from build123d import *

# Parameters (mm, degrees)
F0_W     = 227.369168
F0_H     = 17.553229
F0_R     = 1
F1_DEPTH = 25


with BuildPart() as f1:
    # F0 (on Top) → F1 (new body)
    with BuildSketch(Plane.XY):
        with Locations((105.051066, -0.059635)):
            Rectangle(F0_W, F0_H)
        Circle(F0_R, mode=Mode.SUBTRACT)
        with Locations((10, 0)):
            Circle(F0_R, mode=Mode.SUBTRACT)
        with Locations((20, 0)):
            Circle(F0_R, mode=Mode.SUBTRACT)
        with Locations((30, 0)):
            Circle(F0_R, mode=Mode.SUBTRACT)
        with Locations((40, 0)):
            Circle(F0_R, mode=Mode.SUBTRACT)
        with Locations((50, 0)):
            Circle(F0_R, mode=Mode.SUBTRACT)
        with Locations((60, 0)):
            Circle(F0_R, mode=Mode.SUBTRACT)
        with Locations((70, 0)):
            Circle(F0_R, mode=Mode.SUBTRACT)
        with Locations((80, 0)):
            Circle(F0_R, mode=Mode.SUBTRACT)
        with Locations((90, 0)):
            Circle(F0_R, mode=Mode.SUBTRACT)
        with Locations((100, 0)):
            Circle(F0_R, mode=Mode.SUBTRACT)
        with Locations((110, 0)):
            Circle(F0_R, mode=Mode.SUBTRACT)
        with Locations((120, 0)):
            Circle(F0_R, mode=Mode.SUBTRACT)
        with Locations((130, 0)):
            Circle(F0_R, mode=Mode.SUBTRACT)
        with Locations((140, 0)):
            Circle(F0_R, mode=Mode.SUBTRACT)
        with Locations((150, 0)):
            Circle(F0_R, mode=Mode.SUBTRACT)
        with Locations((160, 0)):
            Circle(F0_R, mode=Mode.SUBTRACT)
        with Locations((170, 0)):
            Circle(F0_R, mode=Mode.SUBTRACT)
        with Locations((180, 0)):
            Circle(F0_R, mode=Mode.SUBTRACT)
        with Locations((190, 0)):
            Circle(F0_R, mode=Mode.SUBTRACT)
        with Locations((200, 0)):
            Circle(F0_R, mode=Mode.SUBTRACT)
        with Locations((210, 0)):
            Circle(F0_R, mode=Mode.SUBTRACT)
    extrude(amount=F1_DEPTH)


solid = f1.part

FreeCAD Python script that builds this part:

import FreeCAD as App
import Part
import Sketcher

V = App.Vector

doc = App.newDocument("Part")
params = doc.addObject("Spreadsheet::Sheet", "Params")
for row, (alias, value) in enumerate([
    ("sketch1_diameter", "2 mm"),
    ("pad1_length", "25 mm"),
], start=1):
    params.set(f"A{row}", alias)
    params.set(f"B{row}", "=" + value)
    params.setAlias(f"B{row}", alias)

body = doc.addObject("PartDesign::Body", "Body")

# Sketch on XY plane
sketch1 = doc.addObject("Sketcher::SketchObject", "Sketch")
body.addObject(sketch1)
sketch1.AttachmentSupport = (doc.XY_Plane, [""])
sketch1.MapMode = "FlatFace"
sketch1.addGeometry(Part.LineSegment(V(-8.6, 8.7, 0), V(-8.6, -8.8, 0)), False)
sketch1.addGeometry(Part.LineSegment(V(-8.6, -8.8, 0), V(218.7, -8.8, 0)), False)
sketch1.addGeometry(Part.LineSegment(V(218.7, -8.8, 0), V(218.7, 8.7, 0)), False)
sketch1.addGeometry(Part.LineSegment(V(218.7, 8.7, 0), V(-8.6, 8.7, 0)), False)
sketch1.addGeometry(Part.Circle(V(0, 0, 0), V(0, 0, 1), 1), False)
sketch1.addGeometry(Part.Circle(V(10, 0, 0), V(0, 0, 1), 1), False)
sketch1.addGeometry(Part.Circle(V(20, 0, 0), V(0, 0, 1), 1), False)
sketch1.addGeometry(Part.Circle(V(30, 0, 0), V(0, 0, 1), 1), False)
sketch1.addGeometry(Part.Circle(V(40, 0, 0), V(0, 0, 1), 1), False)
sketch1.addGeometry(Part.Circle(V(50, 0, 0), V(0, 0, 1), 1), False)
sketch1.addGeometry(Part.Circle(V(60, 0, 0), V(0, 0, 1), 1), False)
sketch1.addGeometry(Part.Circle(V(70, 0, 0), V(0, 0, 1), 1), False)
sketch1.addGeometry(Part.Circle(V(80, 0, 0), V(0, 0, 1), 1), False)
sketch1.addGeometry(Part.Circle(V(90, 0, 0), V(0, 0, 1), 1), False)
sketch1.addGeometry(Part.Circle(V(100, 0, 0), V(0, 0, 1), 1), False)
sketch1.addGeometry(Part.Circle(V(110, 0, 0), V(0, 0, 1), 1), False)
sketch1.addGeometry(Part.Circle(V(120, 0, 0), V(0, 0, 1), 1), False)
sketch1.addGeometry(Part.Circle(V(130, 0, 0), V(0, 0, 1), 1), False)
sketch1.addGeometry(Part.Circle(V(140, 0, 0), V(0, 0, 1), 1), False)
sketch1.addGeometry(Part.Circle(V(150, 0, 0), V(0, 0, 1), 1), False)
sketch1.addGeometry(Part.Circle(V(160, 0, 0), V(0, 0, 1), 1), False)
sketch1.addGeometry(Part.Circle(V(170, 0, 0), V(0, 0, 1), 1), False)
sketch1.addGeometry(Part.Circle(V(180, 0, 0), V(0, 0, 1), 1), False)
sketch1.addGeometry(Part.Circle(V(190, 0, 0), V(0, 0, 1), 1), False)
sketch1.addGeometry(Part.Circle(V(200, 0, 0), V(0, 0, 1), 1), False)
sketch1.addGeometry(Part.Circle(V(210, 0, 0), V(0, 0, 1), 1), False)
sketch1.addConstraint(Sketcher.Constraint("Coincident", 0, 2, 1, 1))
sketch1.addConstraint(Sketcher.Constraint("Coincident", 1, 2, 2, 1))
sketch1.addConstraint(Sketcher.Constraint("Coincident", 2, 2, 3, 1))
sketch1.addConstraint(Sketcher.Constraint("Coincident", 3, 2, 0, 1))
sketch1.addConstraint(Sketcher.Constraint("Vertical", 0))
sketch1.addConstraint(Sketcher.Constraint("Horizontal", 1))
sketch1.addConstraint(Sketcher.Constraint("Vertical", 2))
sketch1.addConstraint(Sketcher.Constraint("Horizontal", 3))
sketch1.addConstraint(Sketcher.Constraint("Coincident", 4, 3, -1, 1))
sketch1.addConstraint(Sketcher.Constraint("Equal", 4, 5))
sketch1.addConstraint(Sketcher.Constraint("Equal", 5, 6))
sketch1.addConstraint(Sketcher.Constraint("Equal", 6, 7))
sketch1.addConstraint(Sketcher.Constraint("Equal", 7, 8))
sketch1.addConstraint(Sketcher.Constraint("Equal", 8, 9))
sketch1.addConstraint(Sketcher.Constraint("Equal", 9, 10))
sketch1.addConstraint(Sketcher.Constraint("Equal", 10, 11))
sketch1.addConstraint(Sketcher.Constraint("Equal", 11, 12))
sketch1.addConstraint(Sketcher.Constraint("Equal", 12, 13))
sketch1.addConstraint(Sketcher.Constraint("Equal", 13, 14))
sketch1.addConstraint(Sketcher.Constraint("Equal", 14, 15))
sketch1.addConstraint(Sketcher.Constraint("Equal", 15, 16))
sketch1.addConstraint(Sketcher.Constraint("Equal", 16, 17))
sketch1.addConstraint(Sketcher.Constraint("Equal", 17, 18))
sketch1.addConstraint(Sketcher.Constraint("Equal", 18, 19))
sketch1.addConstraint(Sketcher.Constraint("Equal", 19, 20))
sketch1.addConstraint(Sketcher.Constraint("Equal", 20, 21))
sketch1.addConstraint(Sketcher.Constraint("Equal", 21, 22))
sketch1.addConstraint(Sketcher.Constraint("Equal", 22, 23))
sketch1.addConstraint(Sketcher.Constraint("Equal", 23, 24))
sketch1.addConstraint(Sketcher.Constraint("Equal", 24, 25))
sketch1.addConstraint(Sketcher.Constraint("PointOnObject", 5, 3, -1))
sketch1.addConstraint(Sketcher.Constraint("PointOnObject", 6, 3, -1))
sketch1.addConstraint(Sketcher.Constraint("PointOnObject", 7, 3, -1))
sketch1.addConstraint(Sketcher.Constraint("PointOnObject", 8, 3, -1))
sketch1.addConstraint(Sketcher.Constraint("PointOnObject", 9, 3, -1))
sketch1.addConstraint(Sketcher.Constraint("PointOnObject", 10, 3, -1))
sketch1.addConstraint(Sketcher.Constraint("PointOnObject", 11, 3, -1))
sketch1.addConstraint(Sketcher.Constraint("PointOnObject", 12, 3, -1))
sketch1.addConstraint(Sketcher.Constraint("PointOnObject", 13, 3, -1))
sketch1.addConstraint(Sketcher.Constraint("PointOnObject", 14, 3, -1))
sketch1.addConstraint(Sketcher.Constraint("PointOnObject", 15, 3, -1))
sketch1.addConstraint(Sketcher.Constraint("PointOnObject", 16, 3, -1))
sketch1.addConstraint(Sketcher.Constraint("PointOnObject", 17, 3, -1))
sketch1.addConstraint(Sketcher.Constraint("PointOnObject", 18, 3, -1))
sketch1.addConstraint(Sketcher.Constraint("PointOnObject", 19, 3, -1))
sketch1.addConstraint(Sketcher.Constraint("PointOnObject", 20, 3, -1))
sketch1.addConstraint(Sketcher.Constraint("PointOnObject", 21, 3, -1))
sketch1.addConstraint(Sketcher.Constraint("PointOnObject", 22, 3, -1))
sketch1.addConstraint(Sketcher.Constraint("PointOnObject", 23, 3, -1))
sketch1.addConstraint(Sketcher.Constraint("PointOnObject", 24, 3, -1))
sketch1.addConstraint(Sketcher.Constraint("PointOnObject", 25, 3, -1))
sketch1.addConstraint(Sketcher.Constraint("Diameter", 4, 2.0))
sketch1.addConstraint(Sketcher.Constraint("DistanceX", -1, 1, 5, 3, 10.0))
sketch1.addConstraint(Sketcher.Constraint("DistanceX", -1, 1, 6, 3, 20.0))
sketch1.addConstraint(Sketcher.Constraint("DistanceX", -1, 1, 7, 3, 30.0))
sketch1.addConstraint(Sketcher.Constraint("DistanceX", -1, 1, 8, 3, 40.0))
sketch1.addConstraint(Sketcher.Constraint("DistanceX", -1, 1, 9, 3, 50.0))
sketch1.addConstraint(Sketcher.Constraint("DistanceX", -1, 1, 10, 3, 60.0))
sketch1.addConstraint(Sketcher.Constraint("DistanceX", -1, 1, 11, 3, 70.0))
sketch1.addConstraint(Sketcher.Constraint("DistanceX", -1, 1, 12, 3, 80.0))
sketch1.addConstraint(Sketcher.Constraint("DistanceX", -1, 1, 13, 3, 90.0))
sketch1.addConstraint(Sketcher.Constraint("DistanceX", -1, 1, 14, 3, 100.0))
sketch1.addConstraint(Sketcher.Constraint("DistanceX", -1, 1, 15, 3, 110.0))
sketch1.addConstraint(Sketcher.Constraint("DistanceX", -1, 1, 16, 3, 120.0))
sketch1.addConstraint(Sketcher.Constraint("DistanceX", -1, 1, 17, 3, 130.0))
sketch1.addConstraint(Sketcher.Constraint("DistanceX", -1, 1, 18, 3, 140.0))
sketch1.addConstraint(Sketcher.Constraint("DistanceX", -1, 1, 19, 3, 150.0))
sketch1.addConstraint(Sketcher.Constraint("DistanceX", -1, 1, 20, 3, 160.0))
sketch1.addConstraint(Sketcher.Constraint("DistanceX", -1, 1, 21, 3, 170.0))
sketch1.addConstraint(Sketcher.Constraint("DistanceX", -1, 1, 22, 3, 180.0))
sketch1.addConstraint(Sketcher.Constraint("DistanceX", -1, 1, 23, 3, 190.0))
sketch1.addConstraint(Sketcher.Constraint("DistanceX", -1, 1, 24, 3, 200.0))
sketch1.addConstraint(Sketcher.Constraint("DistanceX", -1, 1, 25, 3, 210.0))
sketch1.addConstraint(Sketcher.Constraint("DistanceX", 1, 1, 1, 2, 227.369168))
sketch1.addConstraint(Sketcher.Constraint("DistanceY", 0, 2, 0, 1, 17.553229))
sketch1.addConstraint(Sketcher.Constraint("DistanceY", 0, 2, -1, 1, 8.836249))
sketch1.addConstraint(Sketcher.Constraint("DistanceX", -1, 1, 1, 2, 218.73565))
sketch1.setExpression("Constraints[51]", "Params.sketch1_diameter")
pad1 = doc.addObject("PartDesign::Pad", "Pad")
body.addObject(pad1)
pad1.Profile = sketch1
pad1.setExpression("Length", "Params.pad1_length")

doc.recompute()
